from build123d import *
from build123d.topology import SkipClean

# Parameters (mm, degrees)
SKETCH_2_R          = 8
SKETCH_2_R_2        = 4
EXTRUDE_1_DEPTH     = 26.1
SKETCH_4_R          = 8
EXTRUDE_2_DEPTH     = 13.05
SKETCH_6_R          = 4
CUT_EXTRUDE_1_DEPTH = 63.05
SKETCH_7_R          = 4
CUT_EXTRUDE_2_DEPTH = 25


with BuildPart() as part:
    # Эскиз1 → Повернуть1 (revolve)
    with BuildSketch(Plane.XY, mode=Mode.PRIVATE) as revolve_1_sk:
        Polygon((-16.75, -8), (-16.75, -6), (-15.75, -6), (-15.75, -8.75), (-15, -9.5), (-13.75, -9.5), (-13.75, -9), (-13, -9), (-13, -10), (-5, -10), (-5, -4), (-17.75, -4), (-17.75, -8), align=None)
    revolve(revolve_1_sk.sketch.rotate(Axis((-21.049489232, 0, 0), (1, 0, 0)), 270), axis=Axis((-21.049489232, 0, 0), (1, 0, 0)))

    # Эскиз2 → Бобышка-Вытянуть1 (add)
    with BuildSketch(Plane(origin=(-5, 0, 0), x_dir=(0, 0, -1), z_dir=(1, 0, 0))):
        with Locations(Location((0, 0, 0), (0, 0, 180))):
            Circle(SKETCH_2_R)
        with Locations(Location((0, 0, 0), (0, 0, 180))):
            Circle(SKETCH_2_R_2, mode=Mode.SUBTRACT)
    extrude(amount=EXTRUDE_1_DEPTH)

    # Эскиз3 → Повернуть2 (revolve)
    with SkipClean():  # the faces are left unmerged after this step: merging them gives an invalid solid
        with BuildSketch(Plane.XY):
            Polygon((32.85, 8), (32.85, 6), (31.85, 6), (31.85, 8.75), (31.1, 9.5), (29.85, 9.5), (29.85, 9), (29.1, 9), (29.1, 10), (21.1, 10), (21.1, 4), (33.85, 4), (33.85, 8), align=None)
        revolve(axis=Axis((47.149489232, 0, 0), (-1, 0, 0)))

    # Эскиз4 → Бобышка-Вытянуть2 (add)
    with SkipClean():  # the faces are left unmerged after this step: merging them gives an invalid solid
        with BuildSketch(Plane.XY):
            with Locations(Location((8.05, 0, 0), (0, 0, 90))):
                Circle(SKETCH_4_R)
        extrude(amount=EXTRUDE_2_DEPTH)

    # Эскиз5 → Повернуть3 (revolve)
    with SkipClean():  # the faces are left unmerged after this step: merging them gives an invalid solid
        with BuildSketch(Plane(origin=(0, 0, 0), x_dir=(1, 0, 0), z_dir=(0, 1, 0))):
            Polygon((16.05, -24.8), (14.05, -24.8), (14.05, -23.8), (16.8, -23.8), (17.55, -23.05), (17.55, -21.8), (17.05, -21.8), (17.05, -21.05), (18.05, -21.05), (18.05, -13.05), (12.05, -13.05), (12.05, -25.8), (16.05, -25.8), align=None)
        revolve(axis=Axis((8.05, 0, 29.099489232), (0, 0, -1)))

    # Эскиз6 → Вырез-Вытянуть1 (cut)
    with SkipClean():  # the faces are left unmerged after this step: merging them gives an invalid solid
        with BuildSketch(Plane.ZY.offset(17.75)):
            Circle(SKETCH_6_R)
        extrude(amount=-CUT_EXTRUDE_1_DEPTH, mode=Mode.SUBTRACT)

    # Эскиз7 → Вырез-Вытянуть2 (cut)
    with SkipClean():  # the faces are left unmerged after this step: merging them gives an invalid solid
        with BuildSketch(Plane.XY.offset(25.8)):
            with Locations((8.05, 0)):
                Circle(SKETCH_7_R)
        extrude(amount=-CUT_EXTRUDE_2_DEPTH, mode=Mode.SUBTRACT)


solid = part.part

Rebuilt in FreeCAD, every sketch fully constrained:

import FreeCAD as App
import Part
import Sketcher

V = App.Vector
Q = App.Units.Quantity


def add_polygon(sketch, points):
    """Adds a closed chain of lines whose ends are joined by coincident constraints."""
    first, n = sketch.GeometryCount, len(points)
    for a, b in zip(points, points[1:] + points[:1]):
        sketch.addGeometry(Part.LineSegment(App.Vector(*a, 0), App.Vector(*b, 0)), False)
    for i in range(n):
        sketch.addConstraint(Sketcher.Constraint("Coincident", first + i, 2, first + (i + 1) % n, 1))

doc = App.newDocument("Part")
body = doc.addObject("PartDesign::Body", "Body")

# Sketch on XY plane
sketch1 = body.newObject("Sketcher::SketchObject", "Sketch")
sketch1.AttachmentSupport = (doc.getObject("XY_Plane"), [""])
sketch1.MapMode = "FlatFace"
add_polygon(sketch1, [(-16.8, -8), (-16.8, -6), (-15.8, -6), (-15.8, -8.8), (-15, -9.5), (-13.8, -9.5), (-13.8, -9), (-13, -9), (-13, -10), (-5, -10), (-5, -4), (-17.8, -4), (-17.8, -8)])  # lines 0-12
sketch1.addConstraint(Sketcher.Constraint("Vertical", 0))
sketch1.addConstraint(Sketcher.Constraint("Horizontal", 1))
sketch1.addConstraint(Sketcher.Constraint("Vertical", 2))
sketch1.addConstraint(Sketcher.Constraint("Horizontal", 4))
sketch1.addConstraint(Sketcher.Constraint("Vertical", 5))
sketch1.addConstraint(Sketcher.Constraint("Horizontal", 6))
sketch1.addConstraint(Sketcher.Constraint("Vertical", 7))
sketch1.addConstraint(Sketcher.Constraint("Horizontal", 8))
sketch1.addConstraint(Sketcher.Constraint("Vertical", 9))
sketch1.addConstraint(Sketcher.Constraint("Horizontal", 10))
sketch1.addConstraint(Sketcher.Constraint("Vertical", 11))
sketch1.addConstraint(Sketcher.Constraint("Horizontal", 12))
sketch1.addConstraint(Sketcher.Constraint("Equal", 1, 12))
sketch1.addConstraint(Sketcher.Constraint("Equal", 12, 7))
sketch1.addConstraint(Sketcher.Constraint("DistanceX", 1, 1, 1, 2, Q("1 mm")))
sketch1.addConstraint(Sketcher.Constraint("DistanceX", 8, 1, 8, 2, Q("8 mm")))
sketch1.addConstraint(Sketcher.Constraint("DistanceY", 0, 1, 0, 2, Q("2 mm")))
sketch1.addConstraint(Sketcher.Constraint("DistanceY", 9, 1, 9, 2, Q("6 mm")))
sketch1.addConstraint(Sketcher.Constraint("DistanceY", 11, 2, 11, 1, Q("4 mm")))
sketch1.addConstraint(Sketcher.Constraint("Angle", 3, Q("-45 deg")))
sketch1.addConstraint(Sketcher.Constraint("DistanceY", 5, 1, 5, 2, Q("0.5 mm")))
sketch1.addConstraint(Sketcher.Constraint("DistanceY", 0, 2, -1, 1, Q("6 mm")))
sketch1.addConstraint(Sketcher.Constraint("DistanceX", 3, 2, -1, 1, Q("15 mm")))
sketch1.addConstraint(Sketcher.Constraint("DistanceX", 6, 2, -1, 1, Q("13 mm")))
sketch1.addConstraint(Sketcher.Constraint("DistanceX", 2, 2, 4, 2, Q("2 mm")))
sketch1.addConstraint(Sketcher.Constraint("DistanceX", 4, 1, 4, 2, Q("1.25 mm")))
revolution = body.newObject("PartDesign::Revolution", "Revolution")
revolution.Profile = sketch1
revolution.ReferenceAxis = (sketch1, ["H_Axis"])
revolution.Angle = 360

# Sketch on YZ plane
sketch2 = body.newObject("Sketcher::SketchObject", "Sketch001")
sketch2.AttachmentSupport = (doc.getObject("YZ_Plane"), [""])
sketch2.MapMode = "FlatFace"
sketch2.AttachmentOffset = App.Placement(V(0, 0, -5), App.Rotation())
sketch2.addGeometry(Part.Circle(V(0, 0, 0), V(0, 0, 1), 8), False)
sketch2.addGeometry(Part.Circle(V(0, 0, 0), V(0, 0, 1), 4), False)
sketch2.addConstraint(Sketcher.Constraint("Coincident", 0, 3, -1, 1))
sketch2.addConstraint(Sketcher.Constraint("Coincident", 1, 3, -1, 1))
sketch2.addConstraint(Sketcher.Constraint("Diameter", 0, Q("16 mm")))
sketch2.addConstraint(Sketcher.Constraint("Diameter", 1, Q("8 mm")))
pad1 = body.newObject("PartDesign::Pad", "Pad")
pad1.Profile = sketch2
pad1.Length = 26.1

# Sketch on XY plane
sketch3 = body.newObject("Sketcher::SketchObject", "Sketch002")
sketch3.AttachmentSupport = (doc.getObject("XY_Plane"), [""])
sketch3.MapMode = "FlatFace"
add_polygon(sketch3, [(32.9, 8), (32.9, 6), (31.9, 6), (31.9, 8.8), (31.1, 9.5), (29.9, 9.5), (29.9, 9), (29.1, 9), (29.1, 10), (21.1, 10), (21.1, 4), (33.9, 4), (33.9, 8)])  # lines 0-12
sketch3.addConstraint(Sketcher.Constraint("Vertical", 0))
sketch3.addConstraint(Sketcher.Constraint("Horizontal", 1))
sketch3.addConstraint(Sketcher.Constraint("Vertical", 2))
sketch3.addConstraint(Sketcher.Constraint("Horizontal", 4))
sketch3.addConstraint(Sketcher.Constraint("Vertical", 5))
sketch3.addConstraint(Sketcher.Constraint("Horizontal", 6))
sketch3.addConstraint(Sketcher.Constraint("Vertical", 7))
sketch3.addConstraint(Sketcher.Constraint("Horizontal", 8))
sketch3.addConstraint(Sketcher.Constraint("Vertical", 9))
sketch3.addConstraint(Sketcher.Constraint("Horizontal", 10))
sketch3.addConstraint(Sketcher.Constraint("Vertical", 11))
sketch3.addConstraint(Sketcher.Constraint("Horizontal", 12))
sketch3.addConstraint(Sketcher.Constraint("Equal", 1, 12))
sketch3.addConstraint(Sketcher.Constraint("Equal", 12, 7))
sketch3.addConstraint(Sketcher.Constraint("DistanceX", 1, 2, 1, 1, Q("1 mm")))
sketch3.addConstraint(Sketcher.Constraint("DistanceX", 8, 2, 8, 1, Q("8 mm")))
sketch3.addConstraint(Sketcher.Constraint("DistanceY", 0, 2, 0, 1, Q("2 mm")))
sketch3.addConstraint(Sketcher.Constraint("DistanceY", 9, 2, 9, 1, Q("6 mm")))
sketch3.addConstraint(Sketcher.Constraint("DistanceY", 11, 1, 11, 2, Q("4 mm")))
sketch3.addConstraint(Sketcher.Constraint("Angle", 3, Q("135 deg")))
sketch3.addConstraint(Sketcher.Constraint("DistanceY", 5, 2, 5, 1, Q("0.5 mm")))
sketch3.addConstraint(Sketcher.Constraint("DistanceY", -1, 1, 0, 2, Q("6 mm")))
sketch3.addConstraint(Sketcher.Constraint("DistanceX", 4, 2, 2, 2, Q("2 mm")))
sketch3.addConstraint(Sketcher.Constraint("DistanceX", 6, 2, 3, 2, Q("2 mm")))
sketch3.addConstraint(Sketcher.Constraint("DistanceX", 4, 2, 4, 1, Q("1.25 mm")))
sketch3.addConstraint(Sketcher.Constraint("DistanceX", -1, 1, 3, 2, Q("31.1 mm")))
revolution2 = body.newObject("PartDesign::Revolution", "Revolution001")
revolution2.Profile = sketch3
revolution2.ReferenceAxis = (sketch3, ["H_Axis"])
revolution2.Angle = 360

# Sketch on XY plane
sketch4 = body.newObject("Sketcher::SketchObject", "Sketch003")
sketch4.AttachmentSupport = (doc.getObject("XY_Plane"), [""])
sketch4.MapMode = "FlatFace"
sketch4.addGeometry(Part.Circle(V(8, 0, 0), V(0, 0, 1), 8), False)
sketch4.addConstraint(Sketcher.Constraint("PointOnObject", 0, 3, -1))
sketch4.addConstraint(Sketcher.Constraint("Diameter", 0, Q("16 mm")))
sketch4.addConstraint(Sketcher.Constraint("DistanceX", -1, 1, 0, 3, Q("8.05 mm")))
pad2 = body.newObject("PartDesign::Pad", "Pad001")
pad2.Profile = sketch4
pad2.Length = 13.05

# Sketch on XZ plane
sketch5 = body.newObject("Sketcher::SketchObject", "Sketch004")
sketch5.AttachmentSupport = (doc.getObject("XZ_Plane"), [""])
sketch5.MapMode = "FlatFace"
add_polygon(sketch5, [(16.1, 24.8), (14.1, 24.8), (14.1, 23.8), (16.8, 23.8), (17.6, 23.1), (17.6, 21.8), (17.1, 21.8), (17.1, 21.1), (18.1, 21.1), (18.1, 13.1), (12.1, 13.1), (12.1, 25.8), (16.1, 25.8)])  # lines 0-12
sketch5.addGeometry(Part.LineSegment(V(8.1, 25.8, 0), V(8.1, 13.1, 0)), True)  # axis
sketch5.addConstraint(Sketcher.Constraint("Horizontal", 0))
sketch5.addConstraint(Sketcher.Constraint("Vertical", 1))
sketch5.addConstraint(Sketcher.Constraint("Horizontal", 2))
sketch5.addConstraint(Sketcher.Constraint("Vertical", 4))
sketch5.addConstraint(Sketcher.Constraint("Horizontal", 5))
sketch5.addConstraint(Sketcher.Constraint("Vertical", 6))
sketch5.addConstraint(Sketcher.Constraint("Horizontal", 7))
sketch5.addConstraint(Sketcher.Constraint("Vertical", 8))
sketch5.addConstraint(Sketcher.Constraint("Horizontal", 9))
sketch5.addConstraint(Sketcher.Constraint("Vertical", 10))
sketch5.addConstraint(Sketcher.Constraint("Horizontal", 11))
sketch5.addConstraint(Sketcher.Constraint("Vertical", 12))
sketch5.addConstraint(Sketcher.Constraint("Vertical", 13))
sketch5.addConstraint(Sketcher.Constraint("Horizontal", 11, 2, 13, 1))
sketch5.addConstraint(Sketcher.Constraint("Horizontal", 9, 2, 13, 2))
sketch5.addConstraint(Sketcher.Constraint("Equal", 7, 1))
sketch5.addConstraint(Sketcher.Constraint("Equal", 1, 12))
sketch5.addConstraint(Sketcher.Constraint("DistanceX", 0, 2, 0, 1, Q("2 mm")))
sketch5.addConstraint(Sketcher.Constraint("DistanceX", 7, 1, 7, 2, Q("1 mm")))
sketch5.addConstraint(Sketcher.Constraint("DistanceX", 9, 2, 9, 1, Q("6 mm")))
sketch5.addConstraint(Sketcher.Constraint("DistanceX", 11, 1, 11, 2, Q("4 mm")))
sketch5.addConstraint(Sketcher.Constraint("DistanceY", 8, 2, 8, 1, Q("8 mm")))
sketch5.addConstraint(Sketcher.Constraint("Angle", 3, Q("-45 deg")))
sketch5.addConstraint(Sketcher.Constraint("DistanceX", 5, 2, 5, 1, Q("0.5 mm")))
sketch5.addConstraint(Sketcher.Constraint("DistanceY", 4, 2, 2, 2, Q("2 mm")))
sketch5.addConstraint(Sketcher.Constraint("DistanceY", 6, 2, 3, 2, Q("2 mm")))
sketch5.addConstraint(Sketcher.Constraint("DistanceX", 13, 1, 10, 2, Q("4 mm")))
sketch5.addConstraint(Sketcher.Constraint("DistanceX", 2, 1, 2, 2, Q("2.75 mm")))
sketch5.addConstraint(Sketcher.Constraint("DistanceY", -1, 1, 0, 2, Q("24.8 mm")))
sketch5.addConstraint(Sketcher.Constraint("DistanceX", -1, 1, 2, 2, Q("16.8 mm")))
revolution3 = body.newObject("PartDesign::Revolution", "Revolution002")
revolution3.Profile = sketch5
revolution3.ReferenceAxis = (sketch5, ["Axis0"])
revolution3.Angle = 360

# Sketch on YZ plane
sketch6 = body.newObject("Sketcher::SketchObject", "Sketch005")
sketch6.AttachmentSupport = (doc.getObject("YZ_Plane"), [""])
sketch6.MapMode = "FlatFace"
sketch6.AttachmentOffset = App.Placement(V(0, 0, -17.75), App.Rotation())
sketch6.addGeometry(Part.Circle(V(0, 0, 0), V(0, 0, 1), 4), False)
sketch6.addConstraint(Sketcher.Constraint("Coincident", 0, 3, -1, 1))
sketch6.addConstraint(Sketcher.Constraint("Diameter", 0, Q("8 mm")))
pocket1 = body.newObject("PartDesign::Pocket", "Pocket")
pocket1.Profile = sketch6
pocket1.Length = 63.05
pocket1.Reversed = True

# Sketch on XY plane
sketch7 = body.newObject("Sketcher::SketchObject", "Sketch006")
sketch7.AttachmentSupport = (doc.getObject("XY_Plane"), [""])
sketch7.MapMode = "FlatFace"
sketch7.AttachmentOffset = App.Placement(V(0, 0, 25.8), App.Rotation())
sketch7.addGeometry(Part.Circle(V(8.1, 0, 0), V(0, 0, 1), 4), False)
sketch7.addConstraint(Sketcher.Constraint("PointOnObject", 0, 3, -1))
sketch7.addConstraint(Sketcher.Constraint("Diameter", 0, Q("8 mm")))
sketch7.addConstraint(Sketcher.Constraint("DistanceX", -1, 1, 0, 3, Q("8.05 mm")))
pocket2 = body.newObject("PartDesign::Pocket", "Pocket001")
pocket2.Profile = sketch7
pocket2.Length = 25

doc.recompute()
